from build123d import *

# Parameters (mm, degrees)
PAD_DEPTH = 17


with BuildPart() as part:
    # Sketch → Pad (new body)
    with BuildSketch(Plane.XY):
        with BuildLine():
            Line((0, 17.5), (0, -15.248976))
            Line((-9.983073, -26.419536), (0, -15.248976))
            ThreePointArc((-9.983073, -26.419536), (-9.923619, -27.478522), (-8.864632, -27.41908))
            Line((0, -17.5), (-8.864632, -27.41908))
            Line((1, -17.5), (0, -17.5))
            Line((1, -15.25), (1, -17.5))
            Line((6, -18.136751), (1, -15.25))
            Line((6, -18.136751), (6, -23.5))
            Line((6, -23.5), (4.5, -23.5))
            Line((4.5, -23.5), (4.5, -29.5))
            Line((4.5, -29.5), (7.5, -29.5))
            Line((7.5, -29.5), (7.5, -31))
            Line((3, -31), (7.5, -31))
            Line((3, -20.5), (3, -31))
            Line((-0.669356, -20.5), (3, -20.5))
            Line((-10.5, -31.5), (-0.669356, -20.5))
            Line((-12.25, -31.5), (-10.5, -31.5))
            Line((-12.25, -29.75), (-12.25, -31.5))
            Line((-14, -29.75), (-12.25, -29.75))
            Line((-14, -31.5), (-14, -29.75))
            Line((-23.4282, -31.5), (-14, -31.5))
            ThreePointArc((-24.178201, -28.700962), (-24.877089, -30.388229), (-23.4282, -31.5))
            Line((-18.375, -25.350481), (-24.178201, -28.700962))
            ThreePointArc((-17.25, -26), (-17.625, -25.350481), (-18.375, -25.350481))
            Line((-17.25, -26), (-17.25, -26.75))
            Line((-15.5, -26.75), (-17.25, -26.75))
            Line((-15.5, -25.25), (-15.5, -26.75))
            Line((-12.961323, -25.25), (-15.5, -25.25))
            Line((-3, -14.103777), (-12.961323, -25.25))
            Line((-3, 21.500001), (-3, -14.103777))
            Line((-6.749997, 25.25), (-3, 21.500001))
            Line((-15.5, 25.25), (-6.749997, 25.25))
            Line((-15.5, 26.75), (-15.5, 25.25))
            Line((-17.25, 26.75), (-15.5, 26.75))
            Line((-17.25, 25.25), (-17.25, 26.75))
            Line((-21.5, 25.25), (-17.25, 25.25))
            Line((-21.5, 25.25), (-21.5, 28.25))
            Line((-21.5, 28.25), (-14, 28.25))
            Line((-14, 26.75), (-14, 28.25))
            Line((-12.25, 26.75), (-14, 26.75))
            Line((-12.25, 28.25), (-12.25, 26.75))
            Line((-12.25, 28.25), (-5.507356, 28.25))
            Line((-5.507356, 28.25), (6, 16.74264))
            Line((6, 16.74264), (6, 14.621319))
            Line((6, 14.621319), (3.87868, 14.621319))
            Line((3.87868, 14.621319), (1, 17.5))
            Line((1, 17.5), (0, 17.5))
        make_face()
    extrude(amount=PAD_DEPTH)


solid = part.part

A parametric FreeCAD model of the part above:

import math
import FreeCAD as App
import Part
import Sketcher
Q = App.Units.Quantity

doc = App.newDocument("Part")
params = doc.addObject("Spreadsheet::Sheet", "Params")
for row, (alias, value) in enumerate([
    ("sketch1_radius", "1.5 mm"),
    ("sketch1_width", "1 mm"),
    ("sketch1_width2", "3 mm"),
    ("sketch1_height", "6 mm"),
    ("sketch1_radius2", "0.75 mm"),
    ("pad1_length", "17 mm"),
], start=1):
    params.set(f"A{row}", alias)
    params.set(f"B{row}", "=" + value)
    params.setAlias(f"B{row}", alias)

body = doc.addObject("PartDesign::Body", "Body")

sketch1 = doc.addObject("Sketcher::SketchObject", "Sketch")
body.addObject(sketch1)
sketch1.AttachmentSupport = (doc.XY_Plane, [""])
sketch1.MapMode = "FlatFace"
sketch1.addGeometry(Part.LineSegment(App.Vector(0, -15.2, 0), App.Vector(0, 17.5, 0)), False)
sketch1.addGeometry(Part.LineSegment(App.Vector(0, 17.5, 0), App.Vector(1, 17.5, 0)), False)
sketch1.addGeometry(Part.LineSegment(App.Vector(1, 17.5, 0), App.Vector(3.9, 14.6, 0)), False)
sketch1.addGeometry(Part.LineSegment(App.Vector(3.9, 14.6, 0), App.Vector(6, 14.6, 0)), False)
sketch1.addGeometry(Part.LineSegment(App.Vector(6, 14.6, 0), App.Vector(6, 16.7, 0)), False)
sketch1.addGeometry(Part.LineSegment(App.Vector(6, 16.7, 0), App.Vector(-5.5, 28.2, 0)), False)
sketch1.addGeometry(Part.LineSegment(App.Vector(-5.5, 28.2, 0), App.Vector(-12.2, 28.2, 0)), False)
sketch1.addGeometry(Part.LineSegment(App.Vector(-12.2, 28.2, 0), App.Vector(-12.2, 26.8, 0)), False)
sketch1.addGeometry(Part.LineSegment(App.Vector(-12.2, 26.8, 0), App.Vector(-14, 26.8, 0)), False)
sketch1.addGeometry(Part.LineSegment(App.Vector(-14, 26.8, 0), App.Vector(-14, 28.2, 0)), False)
sketch1.addGeometry(Part.LineSegment(App.Vector(-14, 28.2, 0), App.Vector(-21.5, 28.2, 0)), False)
sketch1.addGeometry(Part.LineSegment(App.Vector(-21.5, 28.2, 0), App.Vector(-21.5, 25.2, 0)), False)
sketch1.addGeometry(Part.LineSegment(App.Vector(-21.5, 25.2, 0), App.Vector(-17.2, 25.2, 0)), False)
sketch1.addGeometry(Part.LineSegment(App.Vector(-17.2, 25.2, 0), App.Vector(-17.2, 26.8, 0)), False)
sketch1.addGeometry(Part.LineSegment(App.Vector(-17.2, 26.8, 0), App.Vector(-15.5, 26.8, 0)), False)
sketch1.addGeometry(Part.LineSegment(App.Vector(-15.5, 26.8, 0), App.Vector(-15.5, 25.2, 0)), False)
sketch1.addGeometry(Part.LineSegment(App.Vector(-15.5, 25.2, 0), App.Vector(-6.7, 25.2, 0)), False)
sketch1.addGeometry(Part.LineSegment(App.Vector(-6.7, 25.2, 0), App.Vector(-3, 21.5, 0)), False)
sketch1.addGeometry(Part.LineSegment(App.Vector(-3, 21.5, 0), App.Vector(-3, -14.1, 0)), False)
sketch1.addGeometry(Part.LineSegment(App.Vector(-3, -14.1, 0), App.Vector(-13, -25.2, 0)), False)
sketch1.addGeometry(Part.LineSegment(App.Vector(-13, -25.2, 0), App.Vector(-15.5, -25.2, 0)), False)
sketch1.addGeometry(Part.LineSegment(App.Vector(-15.5, -25.2, 0), App.Vector(-15.5, -26.8, 0)), False)
sketch1.addGeometry(Part.LineSegment(App.Vector(-15.5, -26.8, 0), App.Vector(-17.2, -26.8, 0)), False)
sketch1.addGeometry(Part.LineSegment(App.Vector(-17.2, -26.8, 0), App.Vector(-17.2, -26, 0)), False)
sketch1.addGeometry(Part.ArcOfCircle(Part.Circle(App.Vector(-18, -26, 0), App.Vector(0, 0, 1), 0.8), math.radians(0), math.radians(120)), False)
sketch1.addGeometry(Part.LineSegment(App.Vector(-18.4, -25.4, 0), App.Vector(-24.2, -28.7, 0)), False)
sketch1.addGeometry(Part.ArcOfCircle(Part.Circle(App.Vector(-23.4, -30, 0), App.Vector(0, 0, 1), 1.5), math.radians(120), math.radians(270)), False)
sketch1.addGeometry(Part.LineSegment(App.Vector(-23.4, -31.5, 0), App.Vector(-14, -31.5, 0)), False)
sketch1.addGeometry(Part.LineSegment(App.Vector(-14, -31.5, 0), App.Vector(-14, -29.8, 0)), False)
sketch1.addGeometry(Part.LineSegment(App.Vector(-14, -29.8, 0), App.Vector(-12.2, -29.8, 0)), False)
sketch1.addGeometry(Part.LineSegment(App.Vector(-12.2, -29.8, 0), App.Vector(-12.2, -31.5, 0)), False)
sketch1.addGeometry(Part.LineSegment(App.Vector(-12.2, -31.5, 0), App.Vector(-10.5, -31.5, 0)), False)
sketch1.addGeometry(Part.LineSegment(App.Vector(-10.5, -31.5, 0), App.Vector(-0.7, -20.5, 0)), False)
sketch1.addGeometry(Part.LineSegment(App.Vector(-0.7, -20.5, 0), App.Vector(3, -20.5, 0)), False)
sketch1.addGeometry(Part.LineSegment(App.Vector(3, -20.5, 0), App.Vector(3, -31, 0)), False)
sketch1.addGeometry(Part.LineSegment(App.Vector(3, -31, 0), App.Vector(7.5, -31, 0)), False)
sketch1.addGeometry(Part.LineSegment(App.Vector(7.5, -31, 0), App.Vector(7.5, -29.5, 0)), False)
sketch1.addGeometry(Part.LineSegment(App.Vector(7.5, -29.5, 0), App.Vector(4.5, -29.5, 0)), False)
sketch1.addGeometry(Part.LineSegment(App.Vector(4.5, -29.5, 0), App.Vector(4.5, -23.5, 0)), False)
sketch1.addGeometry(Part.LineSegment(App.Vector(4.5, -23.5, 0), App.Vector(6, -23.5, 0)), False)
sketch1.addGeometry(Part.LineSegment(App.Vector(6, -23.5, 0), App.Vector(6, -18.1, 0)), False)
sketch1.addGeometry(Part.LineSegment(App.Vector(6, -18.1, 0), App.Vector(1, -15.2, 0)), False)
sketch1.addGeometry(Part.LineSegment(App.Vector(1, -15.2, 0), App.Vector(1, -17.5, 0)), False)
sketch1.addGeometry(Part.LineSegment(App.Vector(1, -17.5, 0), App.Vector(0, -17.5, 0)), False)
sketch1.addGeometry(Part.LineSegment(App.Vector(0, -17.5, 0), App.Vector(-8.9, -27.4, 0)), False)
sketch1.addGeometry(Part.ArcOfCircle(Part.Circle(App.Vector(-9.4, -26.9, 0), App.Vector(0, 0, 1), 0.7), math.radians(138), math.radians(318)), False)
sketch1.addGeometry(Part.LineSegment(App.Vector(-10, -26.4, 0), App.Vector(0, -15.2, 0)), False)
sketch1.addConstraint(Sketcher.Constraint("Coincident", 0, 2, 1, 1))
sketch1.addConstraint(Sketcher.Constraint("Coincident", 1, 2, 2, 1))
sketch1.addConstraint(Sketcher.Constraint("Coincident", 2, 2, 3, 1))
sketch1.addConstraint(Sketcher.Constraint("Coincident", 3, 2, 4, 1))
sketch1.addConstraint(Sketcher.Constraint("Coincident", 4, 2, 5, 1))
sketch1.addConstraint(Sketcher.Constraint("Coincident", 5, 2, 6, 1))
sketch1.addConstraint(Sketcher.Constraint("Coincident", 6, 2, 7, 1))
sketch1.addConstraint(Sketcher.Constraint("Coincident", 7, 2, 8, 1))
sketch1.addConstraint(Sketcher.Constraint("Coincident", 8, 2, 9, 1))
sketch1.addConstraint(Sketcher.Constraint("Coincident", 9, 2, 10, 1))
sketch1.addConstraint(Sketcher.Constraint("Coincident", 10, 2, 11, 1))
sketch1.addConstraint(Sketcher.Constraint("Coincident", 11, 2, 12, 1))
sketch1.addConstraint(Sketcher.Constraint("Coincident", 12, 2, 13, 1))
sketch1.addConstraint(Sketcher.Constraint("Coincident", 13, 2, 14, 1))
sketch1.addConstraint(Sketcher.Constraint("Coincident", 14, 2, 15, 1))
sketch1.addConstraint(Sketcher.Constraint("Coincident", 15, 2, 16, 1))
sketch1.addConstraint(Sketcher.Constraint("Coincident", 16, 2, 17, 1))
sketch1.addConstraint(Sketcher.Constraint("Coincident", 17, 2, 18, 1))
sketch1.addConstraint(Sketcher.Constraint("Coincident", 18, 2, 19, 1))
sketch1.addConstraint(Sketcher.Constraint("Coincident", 19, 2, 20, 1))
sketch1.addConstraint(Sketcher.Constraint("Coincident", 20, 2, 21, 1))
sketch1.addConstraint(Sketcher.Constraint("Coincident", 21, 2, 22, 1))
sketch1.addConstraint(Sketcher.Constraint("Coincident", 22, 2, 23, 1))
sketch1.addConstraint(Sketcher.Constraint("Tangent", 23, 2, 24, 1))
sketch1.addConstraint(Sketcher.Constraint("Tangent", 24, 2, 25, 1))
sketch1.addConstraint(Sketcher.Constraint("Tangent", 25, 2, 26, 1))
sketch1.addConstraint(Sketcher.Constraint("Tangent", 26, 2, 27, 1))
sketch1.addConstraint(Sketcher.Constraint("Coincident", 27, 2, 28, 1))
sketch1.addConstraint(Sketcher.Constraint("Coincident", 28, 2, 29, 1))
sketch1.addConstraint(Sketcher.Constraint("Coincident", 29, 2, 30, 1))
sketch1.addConstraint(Sketcher.Constraint("Coincident", 30, 2, 31, 1))
sketch1.addConstraint(Sketcher.Constraint("Coincident", 31, 2, 32, 1))
sketch1.addConstraint(Sketcher.Constraint("Coincident", 32, 2, 33, 1))
sketch1.addConstraint(Sketcher.Constraint("Coincident", 33, 2, 34, 1))
sketch1.addConstraint(Sketcher.Constraint("Coincident", 34, 2, 35, 1))
sketch1.addConstraint(Sketcher.Constraint("Coincident", 35, 2, 36, 1))
sketch1.addConstraint(Sketcher.Constraint("Coincident", 36, 2, 37, 1))
sketch1.addConstraint(Sketcher.Constraint("Coincident", 37, 2, 38, 1))
sketch1.addConstraint(Sketcher.Constraint("Coincident", 38, 2, 39, 1))
sketch1.addConstraint(Sketcher.Constraint("Coincident", 39, 2, 40, 1))
sketch1.addConstraint(Sketcher.Constraint("Coincident", 40, 2, 41, 1))
sketch1.addConstraint(Sketcher.Constraint("Coincident", 41, 2, 42, 1))
sketch1.addConstraint(Sketcher.Constraint("Coincident", 42, 2, 43, 1))
sketch1.addConstraint(Sketcher.Constraint("Coincident", 43, 2, 44, 1))
sketch1.addConstraint(Sketcher.Constraint("Coincident", 44, 2, 45, 2))
sketch1.addConstraint(Sketcher.Constraint("Coincident", 45, 1, 46, 1))
sketch1.addConstraint(Sketcher.Constraint("Coincident", 46, 2, 0, 1))
sketch1.addConstraint(Sketcher.Constraint("Vertical", 0))
sketch1.addConstraint(Sketcher.Constraint("Horizontal", 1))
sketch1.addConstraint(Sketcher.Constraint("Horizontal", 3))
sketch1.addConstraint(Sketcher.Constraint("Vertical", 4))
sketch1.addConstraint(Sketcher.Constraint("Horizontal", 6))
sketch1.addConstraint(Sketcher.Constraint("Vertical", 7))
sketch1.addConstraint(Sketcher.Constraint("Horizontal", 8))
sketch1.addConstraint(Sketcher.Constraint("Vertical", 9))
sketch1.addConstraint(Sketcher.Constraint("Horizontal", 10))
sketch1.addConstraint(Sketcher.Constraint("Vertical", 11))
sketch1.addConstraint(Sketcher.Constraint("Horizontal", 12))
sketch1.addConstraint(Sketcher.Constraint("Vertical", 13))
sketch1.addConstraint(Sketcher.Constraint("Horizontal", 14))
sketch1.addConstraint(Sketcher.Constraint("Vertical", 15))
sketch1.addConstraint(Sketcher.Constraint("Horizontal", 16))
sketch1.addConstraint(Sketcher.Constraint("Vertical", 18))
sketch1.addConstraint(Sketcher.Constraint("Horizontal", 20))
sketch1.addConstraint(Sketcher.Constraint("Vertical", 21))
sketch1.addConstraint(Sketcher.Constraint("Horizontal", 22))
sketch1.addConstraint(Sketcher.Constraint("Vertical", 23))
sketch1.addConstraint(Sketcher.Constraint("Horizontal", 27))
sketch1.addConstraint(Sketcher.Constraint("Vertical", 28))
sketch1.addConstraint(Sketcher.Constraint("Horizontal", 29))
sketch1.addConstraint(Sketcher.Constraint("Vertical", 30))
sketch1.addConstraint(Sketcher.Constraint("Horizontal", 31))
sketch1.addConstraint(Sketcher.Constraint("Horizontal", 33))
sketch1.addConstraint(Sketcher.Constraint("Vertical", 34))
sketch1.addConstraint(Sketcher.Constraint("Horizontal", 35))
sketch1.addConstraint(Sketcher.Constraint("Vertical", 36))
sketch1.addConstraint(Sketcher.Constraint("Horizontal", 37))
sketch1.addConstraint(Sketcher.Constraint("Vertical", 38))
sketch1.addConstraint(Sketcher.Constraint("Horizontal", 39))
sketch1.addConstraint(Sketcher.Constraint("Vertical", 40))
sketch1.addConstraint(Sketcher.Constraint("Vertical", 42))
sketch1.addConstraint(Sketcher.Constraint("Horizontal", 43))
sketch1.addConstraint(Sketcher.Constraint("Equal", 24, 45))
sketch1.addConstraint(Sketcher.Constraint("Symmetric", 0, 2, 43, 2, -1, 1))
sketch1.addConstraint(Sketcher.Constraint("Symmetric", 15, 2, 20, 2, -1))
sketch1.addConstraint(Sketcher.Constraint("Symmetric", 13, 2, 22, 2, -1))
sketch1.addConstraint(Sketcher.Constraint("PointOnObject", 0, 2, -2))
sketch1.addConstraint(Sketcher.Constraint("Parallel", 2, 5))
sketch1.addConstraint(Sketcher.Constraint("Parallel", 5, 17))
sketch1.addConstraint(Sketcher.Constraint("Parallel", 19, 32))
sketch1.addConstraint(Sketcher.Constraint("Parallel", 32, 44))
sketch1.addConstraint(Sketcher.Constraint("Parallel", 44, 46))
sketch1.addConstraint(Sketcher.Constraint("Horizontal", 6, 2, 9, 2))
sketch1.addConstraint(Sketcher.Constraint("Horizontal", 8, 2, 13, 2))
sketch1.addConstraint(Sketcher.Constraint("Horizontal", 12, 2, 15, 2))
sketch1.addConstraint(Sketcher.Constraint("Horizontal", 27, 2, 30, 2))
sketch1.addConstraint(Sketcher.Constraint("Vertical", 9, 2, 27, 2))
sketch1.addConstraint(Sketcher.Constraint("Vertical", 7, 2, 29, 2))
sketch1.addConstraint(Sketcher.Constraint("Vertical", 4, 2, 39, 2))
sketch1.addConstraint(Sketcher.Constraint("Vertical", 1, 2, 41, 2))
sketch1.addConstraint(Sketcher.Constraint("Equal", 8, 14))
sketch1.addConstraint(Sketcher.Constraint("Equal", 29, 31))
sketch1.addConstraint(Sketcher.Constraint("Equal", 3, 4))
sketch1.addConstraint(Sketcher.Constraint("Equal", 39, 7))
sketch1.addConstraint(Sketcher.Constraint("Equal", 37, 11))
sketch1.addConstraint(Sketcher.Constraint("Equal", 9, 13))
sketch1.addConstraint(Sketcher.Constraint("Equal", 31, 28))
sketch1.addConstraint(Sketcher.Constraint("Equal", 21, 36))
sketch1.addConstraint(Sketcher.Constraint("Radius", 26, 1.5))
sketch1.addConstraint(Sketcher.Constraint("DistanceX", 1, 1, 1, 2, 1.0))
sketch1.addConstraint(Sketcher.Constraint("DistanceX", 37, 2, 37, 1, 3.0))
sketch1.addConstraint(Sketcher.Constraint("DistanceY", 38, 1, 38, 2, 6.0))
sketch1.addConstraint(Sketcher.Constraint("Angle", 2, Q("-45.00001 deg")))
sketch1.addConstraint(Sketcher.Constraint("Angle", 25, Q("-149.99999 deg")))
sketch1.addConstraint(Sketcher.Constraint("Angle", 41, Q("150.000003 deg")))
sketch1.addConstraint(Sketcher.Constraint("Radius", 24, 0.75))
sketch1.addConstraint(Sketcher.Constraint("DistanceX", 10, 2, 10, 1, 7.5))
sketch1.addConstraint(Sketcher.Constraint("DistanceX", 35, 1, 35, 2, 4.5))
sketch1.addConstraint(Sketcher.Constraint("DistanceY", 34, 2, 34, 1, 10.5))
sketch1.addConstraint(Sketcher.Constraint("DistanceX", 24, 3, -1, 1, 18.0))
sketch1.addConstraint(Sketcher.Constraint("DistanceY", 24, 3, -1, 1, 26.0))
sketch1.addConstraint(Sketcher.Constraint("DistanceY", 26, 3, -1, 1, 30.0))
sketch1.addConstraint(Sketcher.Constraint("DistanceX", -1, 1, 3, 2, 6.0))
sketch1.addConstraint(Sketcher.Constraint("DistanceX", 8, 2, -1, 1, 14.0))
sketch1.addConstraint(Sketcher.Constraint("DistanceX", 17, 2, -1, 1, 3.0))
sketch1.addConstraint(Sketcher.Constraint("DistanceY", 34, 2, -1, 1, 31.0))
sketch1.addConstraint(Sketcher.Constraint("DistanceX", 12, 2, 7, 2, 5.0))
sketch1.addConstraint(Sketcher.Constraint("DistanceY", 0, 2, 17, 2, 4.000001))
sketch1.addConstraint(Sketcher.Constraint("DistanceY", 28, 2, 21, 2, 3.0))
sketch1.addConstraint(Sketcher.Constraint("DistanceY", 32, 2, 42, 2, 3.0))
sketch1.addConstraint(Sketcher.Constraint("DistanceY", 42, 2, 42, 1, 2.25))
sketch1.addConstraint(Sketcher.Constraint("Distance", 44, 13.303001))
sketch1.addConstraint(Sketcher.Constraint("DistanceX", 3, 1, 3, 2, 2.12132))
sketch1.addConstraint(Sketcher.Constraint("DistanceY", 45, 3, -1, 1, 26.919302))
sketch1.addConstraint(Sketcher.Constraint("DistanceY", 46, 2, 18, 2, 1.145199))
sketch1.addConstraint(Sketcher.Constraint("Distance", 32, 14.75268))
sketch1.addConstraint(Sketcher.Constraint("DistanceX", 45, 1, 44, 2, 1.118441))
sketch1.setExpression("Constraints[108]", "Params.sketch1_radius")
sketch1.setExpression("Constraints[109]", "Params.sketch1_width")
sketch1.setExpression("Constraints[110]", "Params.sketch1_width2")
sketch1.setExpression("Constraints[111]", "Params.sketch1_height")
sketch1.setExpression("Constraints[115]", "Params.sketch1_radius2")
pad1 = doc.addObject("PartDesign::Pad", "Pad")
body.addObject(pad1)
pad1.Profile = sketch1
pad1.setExpression("Length", "Params.pad1_length")

doc.recompute()
